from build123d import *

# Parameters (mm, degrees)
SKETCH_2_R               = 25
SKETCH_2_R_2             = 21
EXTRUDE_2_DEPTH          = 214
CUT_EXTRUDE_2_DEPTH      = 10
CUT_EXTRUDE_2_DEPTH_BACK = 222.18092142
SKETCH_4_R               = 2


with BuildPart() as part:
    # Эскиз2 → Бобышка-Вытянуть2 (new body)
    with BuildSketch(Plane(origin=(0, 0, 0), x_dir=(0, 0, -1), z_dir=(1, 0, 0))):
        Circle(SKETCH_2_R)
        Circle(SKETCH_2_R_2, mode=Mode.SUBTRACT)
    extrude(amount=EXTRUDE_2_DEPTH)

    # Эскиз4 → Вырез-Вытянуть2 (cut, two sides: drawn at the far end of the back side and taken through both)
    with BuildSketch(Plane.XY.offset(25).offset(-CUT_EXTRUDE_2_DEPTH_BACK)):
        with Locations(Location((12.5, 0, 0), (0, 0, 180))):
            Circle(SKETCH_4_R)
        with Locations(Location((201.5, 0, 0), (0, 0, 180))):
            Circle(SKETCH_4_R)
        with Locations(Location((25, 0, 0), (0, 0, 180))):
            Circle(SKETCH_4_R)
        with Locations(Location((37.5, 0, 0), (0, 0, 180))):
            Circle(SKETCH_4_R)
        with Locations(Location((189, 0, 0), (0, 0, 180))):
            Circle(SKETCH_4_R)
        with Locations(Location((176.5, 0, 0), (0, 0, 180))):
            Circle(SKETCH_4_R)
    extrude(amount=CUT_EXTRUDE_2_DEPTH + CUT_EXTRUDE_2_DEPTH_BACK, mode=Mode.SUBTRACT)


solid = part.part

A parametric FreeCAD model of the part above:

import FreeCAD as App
import Part
import Sketcher

V = App.Vector
Q = App.Units.Quantity

doc = App.newDocument("Part")
body = doc.addObject("PartDesign::Body", "Body")

# Sketch on YZ plane
sketch1 = body.newObject("Sketcher::SketchObject", "Sketch")
sketch1.AttachmentSupport = (doc.getObject("YZ_Plane"), [""])
sketch1.MapMode = "FlatFace"
sketch1.addGeometry(Part.Circle(V(0, 0, 0), V(0, 0, 1), 25), False)
sketch1.addGeometry(Part.Circle(V(0, 0, 0), V(0, 0, 1), 21), False)
sketch1.addConstraint(Sketcher.Constraint("Coincident", 0, 3, -1, 1))
sketch1.addConstraint(Sketcher.Constraint("Coincident", 1, 3, -1, 1))
sketch1.addConstraint(Sketcher.Constraint("Diameter", 0, Q("50 mm")))
sketch1.addConstraint(Sketcher.Constraint("Diameter", 1, Q("42 mm")))
pad1 = body.newObject("PartDesign::Pad", "Pad")
pad1.Profile = sketch1
pad1.Length = 214

# Sketch on XY plane
sketch2 = body.newObject("Sketcher::SketchObject", "Sketch001")
sketch2.AttachmentSupport = (doc.getObject("XY_Plane"), [""])
sketch2.MapMode = "FlatFace"
sketch2.AttachmentOffset = App.Placement(V(0, 0, 25), App.Rotation())
sketch2.addGeometry(Part.Circle(V(12.5, 0, 0), V(0, 0, 1), 2), False)
sketch2.addGeometry(Part.Circle(V(201.5, 0, 0), V(0, 0, 1), 2), False)
sketch2.addGeometry(Part.Circle(V(25, 0, 0), V(0, 0, 1), 2), False)
sketch2.addGeometry(Part.Circle(V(37.5, 0, 0), V(0, 0, 1), 2), False)
sketch2.addGeometry(Part.Circle(V(189, 0, 0), V(0, 0, 1), 2), False)
sketch2.addGeometry(Part.Circle(V(176.5, 0, 0), V(0, 0, 1), 2), False)
sketch2.addConstraint(Sketcher.Constraint("Equal", 0, 1))
sketch2.addConstraint(Sketcher.Constraint("Equal", 1, 2))
sketch2.addConstraint(Sketcher.Constraint("Equal", 2, 3))
sketch2.addConstraint(Sketcher.Constraint("Equal", 3, 4))
sketch2.addConstraint(Sketcher.Constraint("Equal", 4, 5))
sketch2.addConstraint(Sketcher.Constraint("PointOnObject", 0, 3, -1))
sketch2.addConstraint(Sketcher.Constraint("PointOnObject", 1, 3, -1))
sketch2.addConstraint(Sketcher.Constraint("PointOnObject", 2, 3, -1))
sketch2.addConstraint(Sketcher.Constraint("PointOnObject", 3, 3, -1))
sketch2.addConstraint(Sketcher.Constraint("PointOnObject", 4, 3, -1))
sketch2.addConstraint(Sketcher.Constraint("PointOnObject", 5, 3, -1))
sketch2.addConstraint(Sketcher.Constraint("Diameter", 0, Q("4 mm")))
sketch2.addConstraint(Sketcher.Constraint("DistanceX", -1, 1, 2, 3, Q("25 mm")))
sketch2.addConstraint(Sketcher.Constraint("DistanceX", -1, 1, 4, 3, Q("189 mm")))
sketch2.addConstraint(Sketcher.Constraint("DistanceX", 0, 3, 1, 3, Q("189 mm")))
sketch2.addConstraint(Sketcher.Constraint("DistanceX", 0, 3, 3, 3, Q("25 mm")))
sketch2.addConstraint(Sketcher.Constraint("DistanceX", 5, 3, 1, 3, Q("25 mm")))
sketch2.addConstraint(Sketcher.Constraint("DistanceX", -1, 1, 0, 3, Q("12.5 mm")))
pocket1 = body.newObject("PartDesign::Pocket", "Pocket")
pocket1.Profile = sketch2
pocket1.Type = "ThroughAll"
pocket1.Midplane = True

doc.recompute()
